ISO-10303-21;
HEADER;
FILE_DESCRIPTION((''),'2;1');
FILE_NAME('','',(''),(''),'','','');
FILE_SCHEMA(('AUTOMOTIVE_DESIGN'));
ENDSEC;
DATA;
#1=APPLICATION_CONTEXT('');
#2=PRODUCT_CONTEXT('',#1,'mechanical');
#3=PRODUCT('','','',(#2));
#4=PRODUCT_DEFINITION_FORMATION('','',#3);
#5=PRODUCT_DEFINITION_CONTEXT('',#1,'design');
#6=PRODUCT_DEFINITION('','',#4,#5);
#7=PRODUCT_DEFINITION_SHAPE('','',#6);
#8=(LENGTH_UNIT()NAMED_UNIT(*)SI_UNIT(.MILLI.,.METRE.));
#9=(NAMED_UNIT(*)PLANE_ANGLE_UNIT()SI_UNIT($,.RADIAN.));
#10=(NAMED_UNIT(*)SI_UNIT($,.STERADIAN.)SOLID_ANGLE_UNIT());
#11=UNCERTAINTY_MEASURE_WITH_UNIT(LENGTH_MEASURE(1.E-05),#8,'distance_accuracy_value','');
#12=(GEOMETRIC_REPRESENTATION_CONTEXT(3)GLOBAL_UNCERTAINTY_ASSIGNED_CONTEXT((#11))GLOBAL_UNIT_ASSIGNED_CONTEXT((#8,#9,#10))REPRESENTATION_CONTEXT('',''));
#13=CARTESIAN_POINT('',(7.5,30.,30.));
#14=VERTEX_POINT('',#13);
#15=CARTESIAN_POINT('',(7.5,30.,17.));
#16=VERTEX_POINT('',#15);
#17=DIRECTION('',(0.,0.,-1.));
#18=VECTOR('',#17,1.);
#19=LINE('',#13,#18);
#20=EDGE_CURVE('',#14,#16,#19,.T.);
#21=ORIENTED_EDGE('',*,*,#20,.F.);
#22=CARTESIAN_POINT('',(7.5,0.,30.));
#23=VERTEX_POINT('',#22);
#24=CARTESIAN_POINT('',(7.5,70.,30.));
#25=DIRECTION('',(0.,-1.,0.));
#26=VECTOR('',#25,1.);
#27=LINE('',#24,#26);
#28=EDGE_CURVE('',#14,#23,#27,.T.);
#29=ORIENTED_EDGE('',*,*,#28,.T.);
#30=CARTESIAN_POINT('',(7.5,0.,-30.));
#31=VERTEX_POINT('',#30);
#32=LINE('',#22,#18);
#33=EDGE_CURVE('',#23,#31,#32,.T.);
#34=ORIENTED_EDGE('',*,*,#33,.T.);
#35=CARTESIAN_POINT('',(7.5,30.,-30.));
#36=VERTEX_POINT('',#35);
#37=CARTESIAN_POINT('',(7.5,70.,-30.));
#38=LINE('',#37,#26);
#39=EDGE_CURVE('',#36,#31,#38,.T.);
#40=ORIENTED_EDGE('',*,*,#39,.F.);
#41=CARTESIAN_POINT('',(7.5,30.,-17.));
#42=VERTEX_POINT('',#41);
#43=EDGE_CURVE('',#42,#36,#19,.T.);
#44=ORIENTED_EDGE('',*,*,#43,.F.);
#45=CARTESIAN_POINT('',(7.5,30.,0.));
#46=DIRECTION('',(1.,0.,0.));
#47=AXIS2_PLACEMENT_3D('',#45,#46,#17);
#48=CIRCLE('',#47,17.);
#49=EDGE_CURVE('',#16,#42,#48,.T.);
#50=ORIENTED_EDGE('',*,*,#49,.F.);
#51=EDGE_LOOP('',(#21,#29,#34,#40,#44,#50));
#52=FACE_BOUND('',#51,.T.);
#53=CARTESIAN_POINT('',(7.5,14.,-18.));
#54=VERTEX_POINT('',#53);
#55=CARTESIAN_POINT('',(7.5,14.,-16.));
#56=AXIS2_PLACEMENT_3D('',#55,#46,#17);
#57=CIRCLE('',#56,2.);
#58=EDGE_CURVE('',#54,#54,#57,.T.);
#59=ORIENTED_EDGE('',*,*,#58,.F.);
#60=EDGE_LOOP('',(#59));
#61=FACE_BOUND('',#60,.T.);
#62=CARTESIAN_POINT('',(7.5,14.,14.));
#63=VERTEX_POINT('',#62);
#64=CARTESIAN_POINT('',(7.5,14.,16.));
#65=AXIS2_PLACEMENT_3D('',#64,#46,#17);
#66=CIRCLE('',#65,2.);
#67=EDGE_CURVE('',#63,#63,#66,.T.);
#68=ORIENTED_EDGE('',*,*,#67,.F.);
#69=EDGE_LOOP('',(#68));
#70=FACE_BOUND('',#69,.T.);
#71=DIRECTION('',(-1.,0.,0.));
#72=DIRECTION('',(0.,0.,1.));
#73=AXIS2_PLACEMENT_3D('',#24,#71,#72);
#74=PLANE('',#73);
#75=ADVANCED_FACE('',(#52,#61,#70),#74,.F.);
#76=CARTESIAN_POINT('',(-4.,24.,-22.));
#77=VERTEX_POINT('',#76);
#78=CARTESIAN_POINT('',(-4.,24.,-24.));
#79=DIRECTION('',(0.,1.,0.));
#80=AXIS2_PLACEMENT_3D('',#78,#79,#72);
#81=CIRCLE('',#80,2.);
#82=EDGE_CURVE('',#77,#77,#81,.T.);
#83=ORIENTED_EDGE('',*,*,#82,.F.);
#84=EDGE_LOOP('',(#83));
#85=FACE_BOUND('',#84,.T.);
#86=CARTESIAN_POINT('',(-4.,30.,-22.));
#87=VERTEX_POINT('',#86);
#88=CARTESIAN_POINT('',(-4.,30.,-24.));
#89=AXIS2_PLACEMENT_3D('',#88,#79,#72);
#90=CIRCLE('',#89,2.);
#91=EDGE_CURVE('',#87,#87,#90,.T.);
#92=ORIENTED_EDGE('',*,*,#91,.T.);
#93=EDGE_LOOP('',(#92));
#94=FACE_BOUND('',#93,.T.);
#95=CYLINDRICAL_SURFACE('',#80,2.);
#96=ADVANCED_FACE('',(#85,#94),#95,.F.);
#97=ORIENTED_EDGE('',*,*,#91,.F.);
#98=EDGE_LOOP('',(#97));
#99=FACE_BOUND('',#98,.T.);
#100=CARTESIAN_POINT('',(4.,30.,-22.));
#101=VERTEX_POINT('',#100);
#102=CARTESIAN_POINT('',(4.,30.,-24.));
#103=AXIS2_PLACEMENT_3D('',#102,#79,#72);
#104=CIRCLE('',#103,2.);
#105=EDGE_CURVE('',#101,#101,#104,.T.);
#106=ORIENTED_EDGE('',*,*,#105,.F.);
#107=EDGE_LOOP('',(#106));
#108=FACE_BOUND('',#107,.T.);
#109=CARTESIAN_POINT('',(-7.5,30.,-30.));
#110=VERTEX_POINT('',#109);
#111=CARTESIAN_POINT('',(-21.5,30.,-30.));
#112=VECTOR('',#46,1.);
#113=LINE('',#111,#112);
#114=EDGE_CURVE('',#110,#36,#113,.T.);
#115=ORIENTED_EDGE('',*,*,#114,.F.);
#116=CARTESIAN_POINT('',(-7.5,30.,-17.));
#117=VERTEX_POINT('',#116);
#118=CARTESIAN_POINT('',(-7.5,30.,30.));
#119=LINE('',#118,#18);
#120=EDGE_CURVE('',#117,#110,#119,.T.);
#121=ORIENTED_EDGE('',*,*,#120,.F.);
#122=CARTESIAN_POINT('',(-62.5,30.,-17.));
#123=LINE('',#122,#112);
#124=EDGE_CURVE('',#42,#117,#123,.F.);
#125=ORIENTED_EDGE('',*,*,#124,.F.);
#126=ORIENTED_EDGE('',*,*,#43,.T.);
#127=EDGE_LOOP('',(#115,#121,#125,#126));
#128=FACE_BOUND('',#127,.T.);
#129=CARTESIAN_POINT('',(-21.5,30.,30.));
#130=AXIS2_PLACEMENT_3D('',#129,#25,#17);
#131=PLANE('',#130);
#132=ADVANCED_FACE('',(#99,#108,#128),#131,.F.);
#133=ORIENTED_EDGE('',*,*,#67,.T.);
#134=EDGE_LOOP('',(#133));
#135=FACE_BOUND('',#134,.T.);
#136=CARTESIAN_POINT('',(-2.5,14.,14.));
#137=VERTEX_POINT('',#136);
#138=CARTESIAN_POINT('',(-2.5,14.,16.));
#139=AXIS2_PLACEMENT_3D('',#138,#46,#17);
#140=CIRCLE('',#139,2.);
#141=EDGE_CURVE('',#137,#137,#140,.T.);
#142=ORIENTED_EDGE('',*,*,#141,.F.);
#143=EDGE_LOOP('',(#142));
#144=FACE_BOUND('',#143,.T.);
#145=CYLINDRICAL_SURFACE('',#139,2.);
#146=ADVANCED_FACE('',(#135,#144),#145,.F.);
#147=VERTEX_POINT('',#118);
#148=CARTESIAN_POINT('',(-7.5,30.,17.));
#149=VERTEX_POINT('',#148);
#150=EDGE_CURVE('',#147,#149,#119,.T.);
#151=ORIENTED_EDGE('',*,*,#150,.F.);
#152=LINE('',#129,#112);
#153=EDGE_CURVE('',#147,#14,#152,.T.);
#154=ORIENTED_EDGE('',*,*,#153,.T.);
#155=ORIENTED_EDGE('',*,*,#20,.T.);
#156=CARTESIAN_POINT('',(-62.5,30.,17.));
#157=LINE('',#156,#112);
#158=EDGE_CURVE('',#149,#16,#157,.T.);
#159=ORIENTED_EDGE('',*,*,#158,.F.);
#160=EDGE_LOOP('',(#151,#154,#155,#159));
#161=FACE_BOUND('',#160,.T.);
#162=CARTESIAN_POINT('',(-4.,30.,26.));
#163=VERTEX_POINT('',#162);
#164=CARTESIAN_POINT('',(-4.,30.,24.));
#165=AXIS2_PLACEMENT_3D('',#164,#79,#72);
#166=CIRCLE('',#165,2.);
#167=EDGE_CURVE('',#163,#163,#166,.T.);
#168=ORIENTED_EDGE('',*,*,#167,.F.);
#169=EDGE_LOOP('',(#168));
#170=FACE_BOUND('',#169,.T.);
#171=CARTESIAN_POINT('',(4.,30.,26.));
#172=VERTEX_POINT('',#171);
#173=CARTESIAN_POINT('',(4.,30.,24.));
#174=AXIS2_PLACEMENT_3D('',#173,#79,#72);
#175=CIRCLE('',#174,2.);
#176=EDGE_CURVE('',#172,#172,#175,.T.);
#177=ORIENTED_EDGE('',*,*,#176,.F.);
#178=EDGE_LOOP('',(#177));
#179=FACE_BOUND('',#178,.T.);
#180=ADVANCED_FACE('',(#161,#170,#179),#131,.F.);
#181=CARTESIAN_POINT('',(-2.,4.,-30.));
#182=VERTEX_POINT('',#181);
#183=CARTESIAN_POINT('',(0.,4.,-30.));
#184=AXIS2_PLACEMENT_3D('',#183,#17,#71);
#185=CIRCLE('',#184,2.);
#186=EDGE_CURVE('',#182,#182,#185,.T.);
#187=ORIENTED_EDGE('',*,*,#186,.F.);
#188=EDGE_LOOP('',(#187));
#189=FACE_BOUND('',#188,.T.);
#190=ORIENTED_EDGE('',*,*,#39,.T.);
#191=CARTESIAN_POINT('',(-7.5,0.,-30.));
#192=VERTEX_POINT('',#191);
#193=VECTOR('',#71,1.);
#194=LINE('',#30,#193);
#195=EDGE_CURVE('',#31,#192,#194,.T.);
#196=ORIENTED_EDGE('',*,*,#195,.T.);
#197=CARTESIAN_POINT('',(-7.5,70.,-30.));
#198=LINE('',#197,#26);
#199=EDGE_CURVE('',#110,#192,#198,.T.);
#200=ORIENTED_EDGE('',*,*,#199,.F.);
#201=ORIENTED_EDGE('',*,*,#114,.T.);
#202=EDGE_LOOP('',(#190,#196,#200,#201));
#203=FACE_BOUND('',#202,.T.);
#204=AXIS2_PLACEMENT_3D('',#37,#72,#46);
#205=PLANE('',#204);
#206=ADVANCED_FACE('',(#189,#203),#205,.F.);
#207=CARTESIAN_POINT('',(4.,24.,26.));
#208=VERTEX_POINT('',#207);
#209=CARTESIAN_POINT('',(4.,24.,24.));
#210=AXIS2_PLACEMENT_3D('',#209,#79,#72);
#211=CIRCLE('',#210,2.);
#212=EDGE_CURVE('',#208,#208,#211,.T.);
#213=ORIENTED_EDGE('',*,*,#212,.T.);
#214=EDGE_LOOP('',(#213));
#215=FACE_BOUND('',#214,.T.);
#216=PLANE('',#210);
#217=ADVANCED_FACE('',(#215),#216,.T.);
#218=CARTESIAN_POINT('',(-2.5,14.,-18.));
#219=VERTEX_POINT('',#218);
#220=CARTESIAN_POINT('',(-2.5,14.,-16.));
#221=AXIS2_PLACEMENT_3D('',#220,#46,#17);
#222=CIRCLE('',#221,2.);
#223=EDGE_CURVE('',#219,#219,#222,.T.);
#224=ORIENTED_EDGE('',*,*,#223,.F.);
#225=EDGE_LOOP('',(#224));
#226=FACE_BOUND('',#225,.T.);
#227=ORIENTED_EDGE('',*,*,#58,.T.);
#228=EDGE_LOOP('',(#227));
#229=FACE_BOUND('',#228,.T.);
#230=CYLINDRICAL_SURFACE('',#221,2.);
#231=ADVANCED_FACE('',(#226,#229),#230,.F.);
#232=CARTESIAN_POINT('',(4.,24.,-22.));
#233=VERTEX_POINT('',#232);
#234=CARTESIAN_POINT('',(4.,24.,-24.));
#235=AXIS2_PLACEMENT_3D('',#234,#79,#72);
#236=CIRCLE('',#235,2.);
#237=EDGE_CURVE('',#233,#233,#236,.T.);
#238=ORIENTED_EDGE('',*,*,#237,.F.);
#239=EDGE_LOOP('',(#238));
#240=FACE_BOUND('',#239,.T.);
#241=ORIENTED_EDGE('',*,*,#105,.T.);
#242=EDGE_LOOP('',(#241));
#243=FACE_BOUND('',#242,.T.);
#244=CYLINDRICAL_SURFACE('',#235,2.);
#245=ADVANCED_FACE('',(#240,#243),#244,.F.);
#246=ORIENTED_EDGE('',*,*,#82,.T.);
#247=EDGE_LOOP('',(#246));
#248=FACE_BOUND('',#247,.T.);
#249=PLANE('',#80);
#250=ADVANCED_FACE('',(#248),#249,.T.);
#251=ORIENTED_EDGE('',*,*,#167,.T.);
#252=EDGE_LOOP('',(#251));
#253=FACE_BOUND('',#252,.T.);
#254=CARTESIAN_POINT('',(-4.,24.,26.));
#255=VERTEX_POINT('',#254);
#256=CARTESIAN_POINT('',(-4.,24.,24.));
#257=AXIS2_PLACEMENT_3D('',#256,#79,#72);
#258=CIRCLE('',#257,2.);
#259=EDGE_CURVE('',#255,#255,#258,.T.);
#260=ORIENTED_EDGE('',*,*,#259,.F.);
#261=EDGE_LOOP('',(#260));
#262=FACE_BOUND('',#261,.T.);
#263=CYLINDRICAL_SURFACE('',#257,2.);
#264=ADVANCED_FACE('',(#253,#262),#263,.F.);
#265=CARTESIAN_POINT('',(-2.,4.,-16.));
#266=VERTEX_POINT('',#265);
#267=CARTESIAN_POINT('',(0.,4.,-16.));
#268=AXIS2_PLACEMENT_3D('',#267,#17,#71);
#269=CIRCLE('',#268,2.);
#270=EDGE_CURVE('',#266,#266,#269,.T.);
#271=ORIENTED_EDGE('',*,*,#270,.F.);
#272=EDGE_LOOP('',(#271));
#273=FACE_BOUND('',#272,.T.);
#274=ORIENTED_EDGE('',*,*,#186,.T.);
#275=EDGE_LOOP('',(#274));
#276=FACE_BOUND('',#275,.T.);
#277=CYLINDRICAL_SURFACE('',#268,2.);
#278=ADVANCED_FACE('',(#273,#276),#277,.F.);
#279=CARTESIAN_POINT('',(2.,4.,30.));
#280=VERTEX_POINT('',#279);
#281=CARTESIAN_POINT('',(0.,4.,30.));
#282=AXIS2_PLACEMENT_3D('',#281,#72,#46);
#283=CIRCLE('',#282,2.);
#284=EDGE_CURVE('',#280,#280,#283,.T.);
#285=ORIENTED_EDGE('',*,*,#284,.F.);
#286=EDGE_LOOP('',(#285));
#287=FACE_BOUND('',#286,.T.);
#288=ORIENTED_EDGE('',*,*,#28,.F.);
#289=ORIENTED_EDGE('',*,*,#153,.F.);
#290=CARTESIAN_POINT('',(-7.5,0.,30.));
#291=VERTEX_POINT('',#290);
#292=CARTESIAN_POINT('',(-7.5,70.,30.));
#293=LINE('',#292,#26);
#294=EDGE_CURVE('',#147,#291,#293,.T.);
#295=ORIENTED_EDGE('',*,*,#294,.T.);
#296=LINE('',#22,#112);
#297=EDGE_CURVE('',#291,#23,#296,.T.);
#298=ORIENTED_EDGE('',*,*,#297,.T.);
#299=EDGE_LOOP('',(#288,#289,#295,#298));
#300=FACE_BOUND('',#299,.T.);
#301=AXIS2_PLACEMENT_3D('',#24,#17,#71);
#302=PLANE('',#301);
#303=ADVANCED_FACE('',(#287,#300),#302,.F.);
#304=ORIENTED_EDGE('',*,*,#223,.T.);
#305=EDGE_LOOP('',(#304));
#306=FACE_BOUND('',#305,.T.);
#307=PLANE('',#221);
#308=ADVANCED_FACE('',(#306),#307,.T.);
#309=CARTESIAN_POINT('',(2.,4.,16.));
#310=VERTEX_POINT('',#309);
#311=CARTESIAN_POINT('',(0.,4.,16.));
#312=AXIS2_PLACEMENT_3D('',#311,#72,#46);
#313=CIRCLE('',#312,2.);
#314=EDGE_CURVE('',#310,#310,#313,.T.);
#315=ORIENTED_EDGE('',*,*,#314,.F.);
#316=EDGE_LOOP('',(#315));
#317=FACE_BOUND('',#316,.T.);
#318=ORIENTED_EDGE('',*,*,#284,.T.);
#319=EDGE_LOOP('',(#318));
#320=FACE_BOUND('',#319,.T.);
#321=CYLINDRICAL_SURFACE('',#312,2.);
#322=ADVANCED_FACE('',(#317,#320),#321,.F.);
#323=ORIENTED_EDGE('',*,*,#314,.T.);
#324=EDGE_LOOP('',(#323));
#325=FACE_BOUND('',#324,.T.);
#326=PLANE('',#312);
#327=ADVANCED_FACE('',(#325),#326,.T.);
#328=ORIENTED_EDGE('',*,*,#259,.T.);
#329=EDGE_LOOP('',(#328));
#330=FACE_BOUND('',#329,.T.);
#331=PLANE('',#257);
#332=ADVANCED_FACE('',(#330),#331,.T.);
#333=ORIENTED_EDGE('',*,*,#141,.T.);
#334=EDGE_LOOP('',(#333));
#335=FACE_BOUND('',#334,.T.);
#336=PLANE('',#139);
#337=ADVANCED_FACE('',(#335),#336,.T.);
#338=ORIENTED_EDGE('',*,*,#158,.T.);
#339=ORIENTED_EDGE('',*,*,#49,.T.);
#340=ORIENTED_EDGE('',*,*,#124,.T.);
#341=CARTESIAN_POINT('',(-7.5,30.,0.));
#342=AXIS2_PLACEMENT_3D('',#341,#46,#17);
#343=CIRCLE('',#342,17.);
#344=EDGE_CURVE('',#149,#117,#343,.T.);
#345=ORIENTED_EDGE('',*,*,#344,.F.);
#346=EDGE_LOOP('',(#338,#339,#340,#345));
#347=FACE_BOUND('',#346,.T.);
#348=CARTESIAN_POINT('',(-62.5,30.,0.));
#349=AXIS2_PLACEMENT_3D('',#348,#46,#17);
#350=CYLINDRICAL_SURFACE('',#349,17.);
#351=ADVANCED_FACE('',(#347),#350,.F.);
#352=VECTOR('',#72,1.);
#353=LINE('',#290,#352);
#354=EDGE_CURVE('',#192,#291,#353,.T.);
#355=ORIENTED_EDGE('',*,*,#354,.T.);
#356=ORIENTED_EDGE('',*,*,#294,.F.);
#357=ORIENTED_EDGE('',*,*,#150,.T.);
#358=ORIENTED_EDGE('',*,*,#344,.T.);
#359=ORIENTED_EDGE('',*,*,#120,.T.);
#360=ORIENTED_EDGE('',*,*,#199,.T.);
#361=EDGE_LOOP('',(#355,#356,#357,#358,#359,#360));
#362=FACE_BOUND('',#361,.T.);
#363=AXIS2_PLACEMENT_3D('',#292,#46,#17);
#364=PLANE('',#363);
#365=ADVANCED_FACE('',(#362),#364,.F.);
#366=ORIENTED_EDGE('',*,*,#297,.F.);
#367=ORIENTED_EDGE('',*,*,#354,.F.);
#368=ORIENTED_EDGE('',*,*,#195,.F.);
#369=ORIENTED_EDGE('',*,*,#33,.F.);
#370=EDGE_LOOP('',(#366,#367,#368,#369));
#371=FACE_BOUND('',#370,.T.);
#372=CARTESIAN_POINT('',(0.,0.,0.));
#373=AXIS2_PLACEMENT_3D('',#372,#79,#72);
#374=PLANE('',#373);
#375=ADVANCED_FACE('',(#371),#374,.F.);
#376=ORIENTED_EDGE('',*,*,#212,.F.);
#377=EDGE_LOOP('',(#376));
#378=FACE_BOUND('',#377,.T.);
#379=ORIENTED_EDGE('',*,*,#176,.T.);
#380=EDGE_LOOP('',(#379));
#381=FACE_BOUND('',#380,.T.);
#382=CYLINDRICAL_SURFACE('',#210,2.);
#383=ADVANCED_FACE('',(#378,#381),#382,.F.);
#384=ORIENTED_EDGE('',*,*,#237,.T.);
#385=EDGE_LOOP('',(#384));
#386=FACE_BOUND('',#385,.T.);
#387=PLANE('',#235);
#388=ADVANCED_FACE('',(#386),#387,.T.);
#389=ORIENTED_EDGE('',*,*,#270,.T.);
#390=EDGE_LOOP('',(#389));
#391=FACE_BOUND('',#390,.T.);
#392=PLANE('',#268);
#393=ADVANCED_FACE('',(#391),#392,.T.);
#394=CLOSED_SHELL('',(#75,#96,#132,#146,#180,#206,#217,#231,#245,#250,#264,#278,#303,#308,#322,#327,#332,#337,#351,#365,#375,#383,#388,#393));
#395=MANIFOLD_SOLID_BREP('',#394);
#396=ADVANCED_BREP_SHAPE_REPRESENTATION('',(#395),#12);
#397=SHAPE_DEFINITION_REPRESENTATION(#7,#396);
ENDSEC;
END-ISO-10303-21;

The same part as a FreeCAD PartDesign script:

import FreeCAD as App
import Part
import Sketcher

V = App.Vector


def add_polygon(sketch, points):
    """Adds a closed chain of lines whose ends are joined by coincident constraints."""
    first, n = sketch.GeometryCount, len(points)
    for a, b in zip(points, points[1:] + points[:1]):
        sketch.addGeometry(Part.LineSegment(App.Vector(*a, 0), App.Vector(*b, 0)), False)
    for i in range(n):
        sketch.addConstraint(Sketcher.Constraint("Coincident", first + i, 2, first + (i + 1) % n, 1))

doc = App.newDocument("Part")
params = doc.addObject("Spreadsheet::Sheet", "Params")
for row, (alias, value) in enumerate([
    ("sketch1_width", "15 mm"),
    ("sketch1_height", "60 mm"),
    ("pad1_length", "70 mm"),
    ("sketch2_diameter", "34 mm"),
    ("pocket1_length", "70 mm"),
    ("sketch3_width", "40 mm"),
    ("sketch3_height", "60 mm"),
    ("pocket2_length", "29 mm"),
    ("sketch4_diameter", "4 mm"),
    ("pocket3_length", "6 mm"),
    ("sketch5_diameter", "4 mm"),
    ("pocket4_length", "10 mm"),
    ("sketch6_diameter", "4 mm"),
    ("pocket5_length", "14 mm"),
    ("sketch7_diameter", "4 mm"),
    ("pocket6_length", "14 mm"),
], start=1):
    params.set(f"A{row}", alias)
    params.set(f"B{row}", "=" + value)
    params.setAlias(f"B{row}", alias)

body = doc.addObject("PartDesign::Body", "Body")

# Sketch on XZ plane
sketch1 = body.newObject("Sketcher::SketchObject", "Sketch")
sketch1.AttachmentSupport = (doc.getObject("XZ_Plane"), [""])
sketch1.MapMode = "FlatFace"
add_polygon(sketch1, [(-7.5, -30), (-7.5, 30), (7.5, 30), (7.5, -30)])  # lines 0-3
sketch1.addConstraint(Sketcher.Constraint("Vertical", 0))
sketch1.addConstraint(Sketcher.Constraint("Horizontal", 1))
sketch1.addConstraint(Sketcher.Constraint("Vertical", 2))
sketch1.addConstraint(Sketcher.Constraint("Horizontal", 3))
sketch1.addConstraint(Sketcher.Constraint("Symmetric", 0, 2, 2, 2, -1, 1))
sketch1.addConstraint(Sketcher.Constraint("DistanceX", 1, 1, 1, 2, 15.0))
sketch1.addConstraint(Sketcher.Constraint("DistanceY", 0, 1, 0, 2, 60.0))
sketch1.setExpression("Constraints[9]", "Params.sketch1_width")
sketch1.setExpression("Constraints[10]", "Params.sketch1_height")
pad1 = body.newObject("PartDesign::Pad", "Pad")
pad1.Profile = sketch1
pad1.setExpression("Length", "Params.pad1_length")
pad1.Reversed = True

# Sketch on YZ plane
sketch2 = body.newObject("Sketcher::SketchObject", "Sketch001")
sketch2.AttachmentSupport = (doc.getObject("YZ_Plane"), [""])
sketch2.MapMode = "FlatFace"
sketch2.AttachmentOffset = App.Placement(V(0, 0, 7.5), App.Rotation())
sketch2.addGeometry(Part.Circle(V(30, 0, 0), V(0, 0, 1), 17), False)
sketch2.addConstraint(Sketcher.Constraint("PointOnObject", 0, 3, -1))
sketch2.addConstraint(Sketcher.Constraint("Diameter", 0, 34.0))
sketch2.addConstraint(Sketcher.Constraint("DistanceX", -1, 1, 0, 3, 30.0))
sketch2.setExpression("Constraints[1]", "Params.sketch2_diameter")
pocket1 = body.newObject("PartDesign::Pocket", "Pocket")
pocket1.Profile = sketch2
pocket1.setExpression("Length", "Params.pocket1_length")

# Sketch on YZ plane
sketch3 = body.newObject("Sketcher::SketchObject", "Sketch002")
sketch3.AttachmentSupport = (doc.getObject("YZ_Plane"), [""])
sketch3.MapMode = "FlatFace"
sketch3.AttachmentOffset = App.Placement(V(0, 0, 7.5), App.Rotation())
add_polygon(sketch3, [(70, 30), (30, 30), (30, -30), (70, -30)])  # lines 0-3
sketch3.addConstraint(Sketcher.Constraint("Horizontal", 0))
sketch3.addConstraint(Sketcher.Constraint("Vertical", 1))
sketch3.addConstraint(Sketcher.Constraint("Horizontal", 2))
sketch3.addConstraint(Sketcher.Constraint("Vertical", 3))
sketch3.addConstraint(Sketcher.Constraint("DistanceX", 0, 2, 0, 1, 40.0))
sketch3.addConstraint(Sketcher.Constraint("DistanceY", 1, 2, 1, 1, 60.0))
sketch3.addConstraint(Sketcher.Constraint("DistanceX", -1, 1, 0, 2, 30.0))
sketch3.addConstraint(Sketcher.Constraint("DistanceY", -1, 1, 0, 2, 30.0))
sketch3.setExpression("Constraints[8]", "Params.sketch3_width")
sketch3.setExpression("Constraints[9]", "Params.sketch3_height")
pocket2 = body.newObject("PartDesign::Pocket", "Pocket001")
pocket2.Profile = sketch3
pocket2.setExpression("Length", "Params.pocket2_length")

# Sketch on XZ plane
sketch4 = body.newObject("Sketcher::SketchObject", "Sketch003")
sketch4.AttachmentSupport = (doc.getObject("XZ_Plane"), [""])
sketch4.MapMode = "FlatFace"
sketch4.AttachmentOffset = App.Placement(V(0, 0, -30), App.Rotation())
sketch4.addGeometry(Part.Circle(V(-4, -24, 0), V(0, 0, 1), 2), False)
sketch4.addGeometry(Part.Circle(V(4, -24, 0), V(0, 0, 1), 2), False)
sketch4.addGeometry(Part.Circle(V(-4, 24, 0), V(0, 0, 1), 2), False)
sketch4.addGeometry(Part.Circle(V(4, 24, 0), V(0, 0, 1), 2), False)
sketch4.addConstraint(Sketcher.Constraint("Equal", 0, 1))
sketch4.addConstraint(Sketcher.Constraint("Equal", 1, 2))
sketch4.addConstraint(Sketcher.Constraint("Equal", 2, 3))
sketch4.addConstraint(Sketcher.Constraint("Symmetric", 1, 3, 2, 3, -1, 1))
sketch4.addConstraint(Sketcher.Constraint("Symmetric", 0, 3, 3, 3, -1, 1))
sketch4.addConstraint(Sketcher.Constraint("Symmetric", 0, 3, 1, 3, -2))
sketch4.addConstraint(Sketcher.Constraint("Diameter", 0, 4.0))
sketch4.addConstraint(Sketcher.Constraint("DistanceX", 0, 3, -1, 1, 4.0))
sketch4.addConstraint(Sketcher.Constraint("DistanceY", 0, 3, -1, 1, 24.0))
sketch4.setExpression("Constraints[6]", "Params.sketch4_diameter")
pocket3 = body.newObject("PartDesign::Pocket", "Pocket002")
pocket3.Profile = sketch4
pocket3.setExpression("Length", "Params.pocket3_length")
pocket3.Reversed = True

# Sketch on YZ plane
sketch5 = body.newObject("Sketcher::SketchObject", "Sketch004")
sketch5.AttachmentSupport = (doc.getObject("YZ_Plane"), [""])
sketch5.MapMode = "FlatFace"
sketch5.AttachmentOffset = App.Placement(V(0, 0, 7.5), App.Rotation())
sketch5.addGeometry(Part.Circle(V(14, 16, 0), V(0, 0, 1), 2), False)
sketch5.addGeometry(Part.Circle(V(14, -16, 0), V(0, 0, 1), 2), False)
sketch5.addConstraint(Sketcher.Constraint("Equal", 0, 1))
sketch5.addConstraint(Sketcher.Constraint("Symmetric", 0, 3, 1, 3, -1))
sketch5.addConstraint(Sketcher.Constraint("Diameter", 0, 4.0))
sketch5.addConstraint(Sketcher.Constraint("DistanceX", -1, 1, 0, 3, 14.0))
sketch5.addConstraint(Sketcher.Constraint("DistanceY", -1, 1, 0, 3, 16.0))
sketch5.setExpression("Constraints[2]", "Params.sketch5_diameter")
pocket4 = body.newObject("PartDesign::Pocket", "Pocket003")
pocket4.Profile = sketch5
pocket4.setExpression("Length", "Params.pocket4_length")

# Sketch on XY plane
sketch6 = body.newObject("Sketcher::SketchObject", "Sketch005")
sketch6.AttachmentSupport = (doc.getObject("XY_Plane"), [""])
sketch6.MapMode = "FlatFace"
sketch6.AttachmentOffset = App.Placement(V(0, 0, -30), App.Rotation())
sketch6.addGeometry(Part.Circle(V(0, 4, 0), V(0, 0, 1), 2), False)
sketch6.addConstraint(Sketcher.Constraint("PointOnObject", 0, 3, -2))
sketch6.addConstraint(Sketcher.Constraint("Diameter", 0, 4.0))
sketch6.addConstraint(Sketcher.Constraint("DistanceY", -1, 1, 0, 3, 4.0))
sketch6.setExpression("Constraints[1]", "Params.sketch6_diameter")
pocket5 = body.newObject("PartDesign::Pocket", "Pocket004")
pocket5.Profile = sketch6
pocket5.setExpression("Length", "Params.pocket5_length")
pocket5.Reversed = True

# Sketch on XY plane
sketch7 = body.newObject("Sketcher::SketchObject", "Sketch006")
sketch7.AttachmentSupport = (doc.getObject("XY_Plane"), [""])
sketch7.MapMode = "FlatFace"
sketch7.AttachmentOffset = App.Placement(V(0, 0, 16), App.Rotation())
sketch7.addGeometry(Part.Circle(V(0, 4, 0), V(0, 0, 1), 2), False)
sketch7.addConstraint(Sketcher.Constraint("PointOnObject", 0, 3, -2))
sketch7.addConstraint(Sketcher.Constraint("Diameter", 0, 4.0))
sketch7.addConstraint(Sketcher.Constraint("DistanceY", -1, 1, 0, 3, 4.0))
sketch7.setExpression("Constraints[1]", "Params.sketch7_diameter")
pocket6 = body.newObject("PartDesign::Pocket", "Pocket005")
pocket6.Profile = sketch7
pocket6.setExpression("Length", "Params.pocket6_length")
pocket6.Reversed = True

doc.recompute()
